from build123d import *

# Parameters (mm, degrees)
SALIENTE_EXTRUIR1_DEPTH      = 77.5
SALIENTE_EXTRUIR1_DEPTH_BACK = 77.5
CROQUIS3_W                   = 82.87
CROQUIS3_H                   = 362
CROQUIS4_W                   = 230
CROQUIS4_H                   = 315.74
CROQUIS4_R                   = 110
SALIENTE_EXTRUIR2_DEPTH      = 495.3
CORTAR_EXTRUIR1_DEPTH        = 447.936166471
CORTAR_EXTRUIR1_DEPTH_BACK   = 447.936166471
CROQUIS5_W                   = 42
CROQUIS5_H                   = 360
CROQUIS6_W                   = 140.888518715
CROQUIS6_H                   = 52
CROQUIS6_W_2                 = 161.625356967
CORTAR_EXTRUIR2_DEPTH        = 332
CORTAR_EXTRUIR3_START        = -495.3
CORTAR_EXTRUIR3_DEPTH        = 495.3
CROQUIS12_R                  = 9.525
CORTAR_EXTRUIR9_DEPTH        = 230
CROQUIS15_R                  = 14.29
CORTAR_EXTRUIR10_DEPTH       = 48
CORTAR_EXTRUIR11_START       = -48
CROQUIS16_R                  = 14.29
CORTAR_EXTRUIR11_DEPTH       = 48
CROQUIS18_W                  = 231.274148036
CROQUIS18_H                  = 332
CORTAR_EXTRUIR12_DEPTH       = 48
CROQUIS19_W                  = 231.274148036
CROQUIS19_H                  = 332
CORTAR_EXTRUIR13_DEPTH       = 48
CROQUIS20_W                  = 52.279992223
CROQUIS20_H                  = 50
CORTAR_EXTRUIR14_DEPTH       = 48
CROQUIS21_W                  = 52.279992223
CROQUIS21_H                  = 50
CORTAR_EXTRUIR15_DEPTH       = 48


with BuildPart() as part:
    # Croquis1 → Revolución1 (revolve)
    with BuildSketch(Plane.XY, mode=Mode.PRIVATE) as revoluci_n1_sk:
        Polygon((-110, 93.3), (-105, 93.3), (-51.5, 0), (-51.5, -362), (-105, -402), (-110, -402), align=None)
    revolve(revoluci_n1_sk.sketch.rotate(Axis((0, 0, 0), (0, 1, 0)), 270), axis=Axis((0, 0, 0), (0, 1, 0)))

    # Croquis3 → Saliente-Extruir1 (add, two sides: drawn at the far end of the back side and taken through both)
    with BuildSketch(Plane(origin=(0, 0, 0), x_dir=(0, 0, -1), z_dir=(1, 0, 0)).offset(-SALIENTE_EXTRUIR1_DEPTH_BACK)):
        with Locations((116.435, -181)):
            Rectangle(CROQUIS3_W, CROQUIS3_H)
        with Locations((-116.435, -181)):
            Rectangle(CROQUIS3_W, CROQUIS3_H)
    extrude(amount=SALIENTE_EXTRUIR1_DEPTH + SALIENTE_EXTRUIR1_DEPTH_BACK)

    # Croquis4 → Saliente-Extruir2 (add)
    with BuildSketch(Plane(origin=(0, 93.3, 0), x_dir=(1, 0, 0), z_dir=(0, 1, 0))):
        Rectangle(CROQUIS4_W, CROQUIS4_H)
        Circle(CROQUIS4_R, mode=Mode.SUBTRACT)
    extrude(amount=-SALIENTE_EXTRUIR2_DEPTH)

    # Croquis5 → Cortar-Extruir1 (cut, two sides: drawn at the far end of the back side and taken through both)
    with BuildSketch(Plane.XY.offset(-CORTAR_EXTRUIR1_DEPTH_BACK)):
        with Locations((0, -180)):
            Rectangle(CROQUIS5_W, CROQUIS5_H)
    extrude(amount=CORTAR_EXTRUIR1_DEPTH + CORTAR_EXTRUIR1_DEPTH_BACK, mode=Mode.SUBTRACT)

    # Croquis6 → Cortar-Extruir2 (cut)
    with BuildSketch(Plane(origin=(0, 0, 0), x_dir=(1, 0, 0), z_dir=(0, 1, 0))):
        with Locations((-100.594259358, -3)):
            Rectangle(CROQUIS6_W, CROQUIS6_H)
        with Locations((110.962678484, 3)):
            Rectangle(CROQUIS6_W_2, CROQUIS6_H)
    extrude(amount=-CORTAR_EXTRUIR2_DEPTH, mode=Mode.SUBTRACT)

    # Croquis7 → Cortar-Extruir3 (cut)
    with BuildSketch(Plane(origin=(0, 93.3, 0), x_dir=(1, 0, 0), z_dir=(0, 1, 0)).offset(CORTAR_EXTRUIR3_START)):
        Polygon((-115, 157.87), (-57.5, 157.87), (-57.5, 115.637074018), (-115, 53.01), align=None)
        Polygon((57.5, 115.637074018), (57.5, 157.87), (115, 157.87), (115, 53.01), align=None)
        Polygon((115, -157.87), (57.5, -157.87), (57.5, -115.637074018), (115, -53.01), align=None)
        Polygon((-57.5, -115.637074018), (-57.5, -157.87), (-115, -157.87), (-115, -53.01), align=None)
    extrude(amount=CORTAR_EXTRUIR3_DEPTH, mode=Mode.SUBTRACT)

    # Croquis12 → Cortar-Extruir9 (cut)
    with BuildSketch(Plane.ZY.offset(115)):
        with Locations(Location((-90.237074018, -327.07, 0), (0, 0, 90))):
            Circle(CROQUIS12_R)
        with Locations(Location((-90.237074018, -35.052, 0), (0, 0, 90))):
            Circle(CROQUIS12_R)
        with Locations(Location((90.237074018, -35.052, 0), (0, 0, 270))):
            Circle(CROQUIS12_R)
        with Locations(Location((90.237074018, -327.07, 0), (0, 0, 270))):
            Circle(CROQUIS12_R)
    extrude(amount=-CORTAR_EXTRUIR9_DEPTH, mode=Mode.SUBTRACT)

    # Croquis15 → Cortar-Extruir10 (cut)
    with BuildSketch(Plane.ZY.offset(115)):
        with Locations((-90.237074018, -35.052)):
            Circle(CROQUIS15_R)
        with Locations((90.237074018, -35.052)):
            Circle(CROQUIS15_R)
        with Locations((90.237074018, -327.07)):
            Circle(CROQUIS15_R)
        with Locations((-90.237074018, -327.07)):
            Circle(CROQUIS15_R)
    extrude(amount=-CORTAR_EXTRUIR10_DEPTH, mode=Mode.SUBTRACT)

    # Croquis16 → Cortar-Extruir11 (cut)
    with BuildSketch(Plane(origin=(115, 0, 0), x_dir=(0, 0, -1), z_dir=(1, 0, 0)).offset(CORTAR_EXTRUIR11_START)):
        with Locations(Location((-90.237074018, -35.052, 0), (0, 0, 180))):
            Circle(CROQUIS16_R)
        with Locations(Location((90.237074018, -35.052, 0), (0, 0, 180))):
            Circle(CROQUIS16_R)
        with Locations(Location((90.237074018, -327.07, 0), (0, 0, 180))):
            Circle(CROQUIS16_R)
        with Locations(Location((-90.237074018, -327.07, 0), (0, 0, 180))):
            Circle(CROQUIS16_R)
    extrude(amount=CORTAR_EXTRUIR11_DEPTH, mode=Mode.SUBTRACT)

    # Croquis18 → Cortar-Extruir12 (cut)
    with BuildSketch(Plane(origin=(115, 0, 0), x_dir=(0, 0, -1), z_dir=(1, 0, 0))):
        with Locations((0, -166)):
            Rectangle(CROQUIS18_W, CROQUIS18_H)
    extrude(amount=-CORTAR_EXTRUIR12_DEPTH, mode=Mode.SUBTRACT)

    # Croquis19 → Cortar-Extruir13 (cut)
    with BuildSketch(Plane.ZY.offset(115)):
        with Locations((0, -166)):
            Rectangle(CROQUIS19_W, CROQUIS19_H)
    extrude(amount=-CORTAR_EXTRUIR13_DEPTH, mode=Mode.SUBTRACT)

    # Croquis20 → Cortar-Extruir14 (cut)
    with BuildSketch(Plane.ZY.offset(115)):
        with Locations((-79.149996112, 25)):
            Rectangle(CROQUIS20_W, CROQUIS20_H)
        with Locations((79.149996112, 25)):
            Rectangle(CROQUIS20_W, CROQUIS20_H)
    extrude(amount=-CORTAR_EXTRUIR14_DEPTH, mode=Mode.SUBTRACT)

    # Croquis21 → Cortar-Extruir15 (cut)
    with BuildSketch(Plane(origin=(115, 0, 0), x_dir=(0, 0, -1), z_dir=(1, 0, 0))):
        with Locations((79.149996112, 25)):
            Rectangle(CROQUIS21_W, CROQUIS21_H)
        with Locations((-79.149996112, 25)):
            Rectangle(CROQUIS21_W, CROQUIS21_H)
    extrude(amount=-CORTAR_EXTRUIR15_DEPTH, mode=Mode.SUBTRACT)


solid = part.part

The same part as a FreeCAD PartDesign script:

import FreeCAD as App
import Part
import Sketcher


def add_polygon(sketch, points):
    """Adds a closed chain of lines whose ends are joined by coincident constraints."""
    first, n = sketch.GeometryCount, len(points)
    for a, b in zip(points, points[1:] + points[:1]):
        sketch.addGeometry(Part.LineSegment(App.Vector(*a, 0), App.Vector(*b, 0)), False)
    for i in range(n):
        sketch.addConstraint(Sketcher.Constraint("Coincident", first + i, 2, first + (i + 1) % n, 1))

doc = App.newDocument("Part")
body = doc.addObject("PartDesign::Body", "Body")

# Sketch on XY plane
sketch1 = body.newObject("Sketcher::SketchObject", "Sketch")
sketch1.AttachmentSupport = (doc.getObject("XY_Plane"), [""])
sketch1.MapMode = "FlatFace"
add_polygon(sketch1, [(-105, 93.3), (-110, 93.3), (-110, -402), (-105, -402), (-51.5, -362), (-51.5, 0)])  # lines 0-5
sketch1.addConstraint(Sketcher.Constraint("Horizontal", 0))
sketch1.addConstraint(Sketcher.Constraint("Vertical", 1))
sketch1.addConstraint(Sketcher.Constraint("Horizontal", 2))
sketch1.addConstraint(Sketcher.Constraint("Vertical", 4))
sketch1.addConstraint(Sketcher.Constraint("PointOnObject", 4, 2, -1))
sketch1.addConstraint(Sketcher.Constraint("Vertical", 2, 2, 5, 2))
sketch1.addConstraint(Sketcher.Constraint("DistanceX", 0, 2, 0, 1, 5.0))
sketch1.addConstraint(Sketcher.Constraint("DistanceY", 4, 1, 4, 2, 362.0))
sketch1.addConstraint(Sketcher.Constraint("DistanceY", 1, 2, 1, 1, 495.3))
sketch1.addConstraint(Sketcher.Constraint("DistanceX", 0, 2, -1, 1, 110.0))
sketch1.addConstraint(Sketcher.Constraint("DistanceY", 1, 2, -1, 1, 402.0))
sketch1.addConstraint(Sketcher.Constraint("DistanceX", 3, 2, -1, 1, 51.5))
revolution = body.newObject("PartDesign::Revolution", "Revolution")
revolution.Profile = sketch1
revolution.ReferenceAxis = (sketch1, ["V_Axis"])
revolution.Angle = 360

# Sketch on YZ plane
sketch2 = body.newObject("Sketcher::SketchObject", "Sketch001")
sketch2.AttachmentSupport = (doc.getObject("YZ_Plane"), [""])
sketch2.MapMode = "FlatFace"
add_polygon(sketch2, [(0, -75), (-362, -75), (-362, -157.87), (0, -157.87)])  # lines 0-3
add_polygon(sketch2, [(0, 157.87), (-362, 157.87), (-362, 75), (0, 75)])  # lines 4-7
sketch2.addConstraint(Sketcher.Constraint("Horizontal", 0))
sketch2.addConstraint(Sketcher.Constraint("Vertical", 1))
sketch2.addConstraint(Sketcher.Constraint("Horizontal", 2))
sketch2.addConstraint(Sketcher.Constraint("Vertical", 3))
sketch2.addConstraint(Sketcher.Constraint("Horizontal", 4))
sketch2.addConstraint(Sketcher.Constraint("Vertical", 5))
sketch2.addConstraint(Sketcher.Constraint("Horizontal", 6))
sketch2.addConstraint(Sketcher.Constraint("Vertical", 7))
sketch2.addConstraint(Sketcher.Constraint("Symmetric", 3, 2, 6, 2, -1, 1))
sketch2.addConstraint(Sketcher.Constraint("Symmetric", 1, 2, 4, 2, -1))
sketch2.addConstraint(Sketcher.Constraint("PointOnObject", 2, 2, -2))
sketch2.addConstraint(Sketcher.Constraint("DistanceX", 0, 2, 0, 1, 362.0))
sketch2.addConstraint(Sketcher.Constraint("DistanceY", 0, 2, -1, 1, 75.0))
sketch2.addConstraint(Sketcher.Constraint("DistanceY", 1, 2, 1, 1, 82.87))
pad1 = body.newObject("PartDesign::Pad", "Pad")
pad1.Profile = sketch2
pad1.Type = "TwoLengths"
pad1.Length = 77.5
pad1.Length2 = 77.5

# Sketch on XZ plane
sketch3 = body.newObject("Sketcher::SketchObject", "Sketch002")
sketch3.AttachmentSupport = (doc.getObject("XZ_Plane"), [""])
sketch3.MapMode = "FlatFace"
sketch3.AttachmentOffset = App.Placement(App.Vector(0, 0, -93.3), App.Rotation())
add_polygon(sketch3, [(-115, -157.87), (-115, 157.87), (115, 157.87), (115, -157.87)])  # lines 0-3
sketch3.addGeometry(Part.Circle(App.Vector(0, 0, 0), App.Vector(0, 0, 1), 110), False)  # 4
sketch3.addConstraint(Sketcher.Constraint("Vertical", 0))
sketch3.addConstraint(Sketcher.Constraint("Horizontal", 1))
sketch3.addConstraint(Sketcher.Constraint("Vertical", 2))
sketch3.addConstraint(Sketcher.Constraint("Horizontal", 3))
sketch3.addConstraint(Sketcher.Constraint("Coincident", 4, 3, -1, 1))
sketch3.addConstraint(Sketcher.Constraint("Symmetric", 0, 2, 2, 2, -1, 1))
sketch3.addConstraint(Sketcher.Constraint("Diameter", 4, 220.0))
sketch3.addConstraint(Sketcher.Constraint("DistanceX", 1, 1, 1, 2, 230.0))
sketch3.addConstraint(Sketcher.Constraint("DistanceY", 0, 1, 0, 2, 315.74))
pad2 = body.newObject("PartDesign::Pad", "Pad001")
pad2.Profile = sketch3
pad2.Length = 495.3

# Sketch on XY plane
sketch4 = body.newObject("Sketcher::SketchObject", "Sketch003")
sketch4.AttachmentSupport = (doc.getObject("XY_Plane"), [""])
sketch4.MapMode = "FlatFace"
add_polygon(sketch4, [(-21, 0), (-21, -360), (21, -360), (21, 0)])  # lines 0-3
sketch4.addConstraint(Sketcher.Constraint("Vertical", 0))
sketch4.addConstraint(Sketcher.Constraint("Horizontal", 1))
sketch4.addConstraint(Sketcher.Constraint("Vertical", 2))
sketch4.addConstraint(Sketcher.Constraint("Horizontal", 3))
sketch4.addConstraint(Sketcher.Constraint("Symmetric", 2, 2, 3, 2, -1, 1))
sketch4.addConstraint(Sketcher.Constraint("DistanceX", 1, 1, 1, 2, 42.0))
sketch4.addConstraint(Sketcher.Constraint("DistanceY", 0, 2, 0, 1, 360.0))
pocket1 = body.newObject("PartDesign::Pocket", "Pocket")
pocket1.Profile = sketch4
pocket1.Type = "ThroughAll"
pocket1.Midplane = True

# Sketch on XZ plane
sketch5 = body.newObject("Sketcher::SketchObject", "Sketch004")
sketch5.AttachmentSupport = (doc.getObject("XZ_Plane"), [""])
sketch5.MapMode = "FlatFace"
add_polygon(sketch5, [(-171.038519, -23), (-171.038519, 29), (-30.15, 29), (-30.15, -23)])  # lines 0-3
add_polygon(sketch5, [(30.15, -29), (30.15, 23), (191.775357, 23), (191.775357, -29)])  # lines 4-7
sketch5.addConstraint(Sketcher.Constraint("Vertical", 0))
sketch5.addConstraint(Sketcher.Constraint("Horizontal", 1))
sketch5.addConstraint(Sketcher.Constraint("Vertical", 2))
sketch5.addConstraint(Sketcher.Constraint("Horizontal", 3))
sketch5.addConstraint(Sketcher.Constraint("Vertical", 4))
sketch5.addConstraint(Sketcher.Constraint("Horizontal", 5))
sketch5.addConstraint(Sketcher.Constraint("Vertical", 6))
sketch5.addConstraint(Sketcher.Constraint("Horizontal", 7))
sketch5.addConstraint(Sketcher.Constraint("Symmetric", 2, 2, 4, 2, -1, 1))
sketch5.addConstraint(Sketcher.Constraint("Equal", 2, 4))
sketch5.addConstraint(Sketcher.Constraint("DistanceY", 0, 1, 0, 2, 52.0))
sketch5.addConstraint(Sketcher.Constraint("DistanceY", -1, 1, 0, 2, 29.0))
sketch5.addConstraint(Sketcher.Constraint("DistanceX", 1, 2, 4, 2, 60.3))
sketch5.addConstraint(Sketcher.Constraint("DistanceX", 1, 1, 1, 2, 140.888519))
sketch5.addConstraint(Sketcher.Constraint("DistanceX", 5, 1, 5, 2, 161.625357))
pocket2 = body.newObject("PartDesign::Pocket", "Pocket001")
pocket2.Profile = sketch5
pocket2.Length = 332
pocket2.Reversed = True

# Sketch on XZ plane
sketch6 = body.newObject("Sketcher::SketchObject", "Sketch005")
sketch6.AttachmentSupport = (doc.getObject("XZ_Plane"), [""])
sketch6.MapMode = "FlatFace"
sketch6.AttachmentOffset = App.Placement(App.Vector(0, 0, 402), App.Rotation())
add_polygon(sketch6, [(-57.5, -157.87), (-115, -157.87), (-115, -53.01), (-57.5, -115.637074)])  # lines 0-3
add_polygon(sketch6, [(57.5, -157.87), (57.5, -115.637074), (115, -53.01), (115, -157.87)])  # lines 4-7
add_polygon(sketch6, [(57.5, 157.87), (115, 157.87), (115, 53.01), (57.5, 115.637074)])  # lines 8-11
add_polygon(sketch6, [(-57.5, 157.87), (-57.5, 115.637074), (-115, 53.01), (-115, 157.87)])  # lines 12-15
sketch6.addConstraint(Sketcher.Constraint("Horizontal", 0))
sketch6.addConstraint(Sketcher.Constraint("Vertical", 1))
sketch6.addConstraint(Sketcher.Constraint("Vertical", 3))
sketch6.addConstraint(Sketcher.Constraint("Vertical", 4))
sketch6.addConstraint(Sketcher.Constraint("Vertical", 6))
sketch6.addConstraint(Sketcher.Constraint("Horizontal", 7))
sketch6.addConstraint(Sketcher.Constraint("Horizontal", 8))
sketch6.addConstraint(Sketcher.Constraint("Vertical", 9))
sketch6.addConstraint(Sketcher.Constraint("Vertical", 11))
sketch6.addConstraint(Sketcher.Constraint("Vertical", 12))
sketch6.addConstraint(Sketcher.Constraint("Vertical", 14))
sketch6.addConstraint(Sketcher.Constraint("Horizontal", 15))
sketch6.addConstraint(Sketcher.Constraint("Symmetric", 0, 2, 8, 2, -1, 1))
sketch6.addConstraint(Sketcher.Constraint("Symmetric", 2, 2, 10, 2, -1, 1))
sketch6.addConstraint(Sketcher.Constraint("Symmetric", 4, 2, 12, 2, -1, 1))
sketch6.addConstraint(Sketcher.Constraint("Symmetric", 5, 2, 13, 2, -1, 1))
sketch6.addConstraint(Sketcher.Constraint("Symmetric", 2, 2, 4, 2, -2))
sketch6.addConstraint(Sketcher.Constraint("Symmetric", 1, 2, 5, 2, -2))
sketch6.addConstraint(Sketcher.Constraint("Parallel", 2, 10))
sketch6.addConstraint(Sketcher.Constraint("Horizontal", 3, 2, 6, 2))
sketch6.addConstraint(Sketcher.Constraint("Horizontal", 11, 2, 14, 2))
sketch6.addConstraint(Sketcher.Constraint("DistanceX", 0, 2, 0, 1, 57.5))
sketch6.addConstraint(Sketcher.Constraint("DistanceX", 0, 2, -1, 1, 115.0))
sketch6.addConstraint(Sketcher.Constraint("DistanceY", 1, 1, 1, 2, 104.86))
sketch6.addConstraint(Sketcher.Constraint("Distance", 2, 85.02))
sketch6.addConstraint(Sketcher.Constraint("DistanceY", 0, 2, -1, 1, 157.87))
pocket3 = body.newObject("PartDesign::Pocket", "Pocket002")
pocket3.Profile = sketch6
pocket3.Length = 495.3

# Sketch on YZ plane
sketch7 = body.newObject("Sketcher::SketchObject", "Sketch006")
sketch7.AttachmentSupport = (doc.getObject("YZ_Plane"), [""])
sketch7.MapMode = "FlatFace"
sketch7.AttachmentOffset = App.Placement(App.Vector(0, 0, -115), App.Rotation())
sketch7.addGeometry(Part.Circle(App.Vector(-327.07, -90.237074, 0), App.Vector(0, 0, 1), 9.525), False)
sketch7.addGeometry(Part.Circle(App.Vector(-35.052, -90.237074, 0), App.Vector(0, 0, 1), 9.525), False)
sketch7.addGeometry(Part.Circle(App.Vector(-35.052, 90.237074, 0), App.Vector(0, 0, 1), 9.525), False)
sketch7.addGeometry(Part.Circle(App.Vector(-327.07, 90.237074, 0), App.Vector(0, 0, 1), 9.525), False)
sketch7.addConstraint(Sketcher.Constraint("Equal", 0, 1))
sketch7.addConstraint(Sketcher.Constraint("Equal", 1, 2))
sketch7.addConstraint(Sketcher.Constraint("Equal", 2, 3))
sketch7.addConstraint(Sketcher.Constraint("Symmetric", 1, 3, 2, 3, -1))
sketch7.addConstraint(Sketcher.Constraint("Symmetric", 0, 3, 3, 3, -1))
sketch7.addConstraint(Sketcher.Constraint("Horizontal", 0, 3, 1, 3))
sketch7.addConstraint(Sketcher.Constraint("Diameter", 0, 19.05))
sketch7.addConstraint(Sketcher.Constraint("DistanceX", 0, 3, -1, 1, 327.07))
sketch7.addConstraint(Sketcher.Constraint("DistanceX", 1, 3, -1, 1, 35.052))
sketch7.addConstraint(Sketcher.Constraint("DistanceY", 1, 3, 2, 3, 180.474148))
pocket4 = body.newObject("PartDesign::Pocket", "Pocket003")
pocket4.Profile = sketch7
pocket4.Length = 230
pocket4.Reversed = True

# Sketch on YZ plane
sketch8 = body.newObject("Sketcher::SketchObject", "Sketch007")
sketch8.AttachmentSupport = (doc.getObject("YZ_Plane"), [""])
sketch8.MapMode = "FlatFace"
sketch8.AttachmentOffset = App.Placement(App.Vector(0, 0, -115), App.Rotation())
sketch8.addGeometry(Part.Circle(App.Vector(-35.052, -90.237074, 0), App.Vector(0, 0, 1), 14.29), False)
sketch8.addGeometry(Part.Circle(App.Vector(-35.052, 90.237074, 0), App.Vector(0, 0, 1), 14.29), False)
sketch8.addGeometry(Part.Circle(App.Vector(-327.07, 90.237074, 0), App.Vector(0, 0, 1), 14.29), False)
sketch8.addGeometry(Part.Circle(App.Vector(-327.07, -90.237074, 0), App.Vector(0, 0, 1), 14.29), False)
sketch8.addConstraint(Sketcher.Constraint("Equal", 0, 1))
sketch8.addConstraint(Sketcher.Constraint("Equal", 1, 2))
sketch8.addConstraint(Sketcher.Constraint("Equal", 2, 3))
sketch8.addConstraint(Sketcher.Constraint("Symmetric", 0, 3, 1, 3, -1))
sketch8.addConstraint(Sketcher.Constraint("Symmetric", 2, 3, 3, 3, -1))
sketch8.addConstraint(Sketcher.Constraint("Horizontal", 1, 3, 2, 3))
sketch8.addConstraint(Sketcher.Constraint("Diameter", 0, 28.58))
sketch8.addConstraint(Sketcher.Constraint("DistanceX", 2, 3, -1, 1, 327.07))
sketch8.addConstraint(Sketcher.Constraint("DistanceX", 0, 3, -1, 1, 35.052))
sketch8.addConstraint(Sketcher.Constraint("DistanceY", 0, 3, 1, 3, 180.474148))
pocket5 = body.newObject("PartDesign::Pocket", "Pocket004")
pocket5.Profile = sketch8
pocket5.Length = 48
pocket5.Reversed = True

# Sketch on YZ plane
sketch9 = body.newObject("Sketcher::SketchObject", "Sketch008")
sketch9.AttachmentSupport = (doc.getObject("YZ_Plane"), [""])
sketch9.MapMode = "FlatFace"
sketch9.AttachmentOffset = App.Placement(App.Vector(0, 0, 67), App.Rotation())
sketch9.addGeometry(Part.Circle(App.Vector(-35.052, 90.237074, 0), App.Vector(0, 0, 1), 14.29), False)
sketch9.addGeometry(Part.Circle(App.Vector(-35.052, -90.237074, 0), App.Vector(0, 0, 1), 14.29), False)
sketch9.addGeometry(Part.Circle(App.Vector(-327.07, -90.237074, 0), App.Vector(0, 0, 1), 14.29), False)
sketch9.addGeometry(Part.Circle(App.Vector(-327.07, 90.237074, 0), App.Vector(0, 0, 1), 14.29), False)
sketch9.addConstraint(Sketcher.Constraint("Equal", 0, 1))
sketch9.addConstraint(Sketcher.Constraint("Equal", 1, 2))
sketch9.addConstraint(Sketcher.Constraint("Equal", 2, 3))
sketch9.addConstraint(Sketcher.Constraint("Symmetric", 0, 3, 1, 3, -1))
sketch9.addConstraint(Sketcher.Constraint("Symmetric", 2, 3, 3, 3, -1))
sketch9.addConstraint(Sketcher.Constraint("Horizontal", 1, 3, 2, 3))
sketch9.addConstraint(Sketcher.Constraint("Diameter", 0, 28.58))
sketch9.addConstraint(Sketcher.Constraint("DistanceX", 2, 3, -1, 1, 327.07))
sketch9.addConstraint(Sketcher.Constraint("DistanceX", 0, 3, -1, 1, 35.052))
sketch9.addConstraint(Sketcher.Constraint("DistanceY", 1, 3, 0, 3, 180.474148))
pocket6 = body.newObject("PartDesign::Pocket", "Pocket005")
pocket6.Profile = sketch9
pocket6.Length = 48
pocket6.Reversed = True

# Sketch on YZ plane
sketch10 = body.newObject("Sketcher::SketchObject", "Sketch009")
sketch10.AttachmentSupport = (doc.getObject("YZ_Plane"), [""])
sketch10.MapMode = "FlatFace"
sketch10.AttachmentOffset = App.Placement(App.Vector(0, 0, 115), App.Rotation())
add_polygon(sketch10, [(0, 115.637074), (-332, 115.637074), (-332, -115.637074), (0, -115.637074)])  # lines 0-3
sketch10.addConstraint(Sketcher.Constraint("Horizontal", 0))
sketch10.addConstraint(Sketcher.Constraint("Vertical", 1))
sketch10.addConstraint(Sketcher.Constraint("Horizontal", 2))
sketch10.addConstraint(Sketcher.Constraint("Vertical", 3))
sketch10.addConstraint(Sketcher.Constraint("Symmetric", 2, 2, 3, 2, -1, 1))
sketch10.addConstraint(Sketcher.Constraint("DistanceX", 0, 2, 0, 1, 332.0))
sketch10.addConstraint(Sketcher.Constraint("DistanceY", 1, 2, 1, 1, 231.274148))
pocket7 = body.newObject("PartDesign::Pocket", "Pocket006")
pocket7.Profile = sketch10
pocket7.Length = 48

# Sketch on YZ plane
sketch11 = body.newObject("Sketcher::SketchObject", "Sketch010")
sketch11.AttachmentSupport = (doc.getObject("YZ_Plane"), [""])
sketch11.MapMode = "FlatFace"
sketch11.AttachmentOffset = App.Placement(App.Vector(0, 0, -115), App.Rotation())
add_polygon(sketch11, [(0, -115.637074), (-332, -115.637074), (-332, 115.637074), (0, 115.637074)])  # lines 0-3
sketch11.addConstraint(Sketcher.Constraint("Horizontal", 0))
sketch11.addConstraint(Sketcher.Constraint("Vertical", 1))
sketch11.addConstraint(Sketcher.Constraint("Horizontal", 2))
sketch11.addConstraint(Sketcher.Constraint("Vertical", 3))
sketch11.addConstraint(Sketcher.Constraint("Symmetric", 2, 2, 3, 2, -1, 1))
sketch11.addConstraint(Sketcher.Constraint("DistanceX", 0, 2, 0, 1, 332.0))
sketch11.addConstraint(Sketcher.Constraint("DistanceY", 1, 1, 1, 2, 231.274148))
pocket8 = body.newObject("PartDesign::Pocket", "Pocket007")
pocket8.Profile = sketch11
pocket8.Length = 48
pocket8.Reversed = True

# Sketch on YZ plane
sketch12 = body.newObject("Sketcher::SketchObject", "Sketch011")
sketch12.AttachmentSupport = (doc.getObject("YZ_Plane"), [""])
sketch12.MapMode = "FlatFace"
sketch12.AttachmentOffset = App.Placement(App.Vector(0, 0, -115), App.Rotation())
add_polygon(sketch12, [(50, -105.289992), (0, -105.289992), (0, -53.01), (50, -53.01)])  # lines 0-3
add_polygon(sketch12, [(50, 53.01), (0, 53.01), (0, 105.289992), (50, 105.289992)])  # lines 4-7
sketch12.addConstraint(Sketcher.Constraint("Horizontal", 0))
sketch12.addConstraint(Sketcher.Constraint("Vertical", 1))
sketch12.addConstraint(Sketcher.Constraint("Horizontal", 2))
sketch12.addConstraint(Sketcher.Constraint("Vertical", 3))
sketch12.addConstraint(Sketcher.Constraint("Horizontal", 4))
sketch12.addConstraint(Sketcher.Constraint("Vertical", 5))
sketch12.addConstraint(Sketcher.Constraint("Horizontal", 6))
sketch12.addConstraint(Sketcher.Constraint("Vertical", 7))
sketch12.addConstraint(Sketcher.Constraint("Symmetric", 1, 2, 4, 2, -1, 1))
sketch12.addConstraint(Sketcher.Constraint("Symmetric", 0, 2, 5, 2, -1))
sketch12.addConstraint(Sketcher.Constraint("Vertical", 3, 2, 6, 2))
sketch12.addConstraint(Sketcher.Constraint("DistanceX", 0, 2, 0, 1, 50.0))
sketch12.addConstraint(Sketcher.Constraint("DistanceY", 1, 2, -1, 1, 53.01))
sketch12.addConstraint(Sketcher.Constraint("DistanceY", 1, 1, 1, 2, 52.279992))
pocket9 = body.newObject("PartDesign::Pocket", "Pocket008")
pocket9.Profile = sketch12
pocket9.Length = 48
pocket9.Reversed = True

# Sketch on YZ plane
sketch13 = body.newObject("Sketcher::SketchObject", "Sketch012")
sketch13.AttachmentSupport = (doc.getObject("YZ_Plane"), [""])
sketch13.MapMode = "FlatFace"
sketch13.AttachmentOffset = App.Placement(App.Vector(0, 0, 115), App.Rotation())
add_polygon(sketch13, [(50, -53.01), (0, -53.01), (0, -105.289992), (50, -105.289992)])  # lines 0-3
add_polygon(sketch13, [(50, 105.289992), (0, 105.289992), (0, 53.01), (50, 53.01)])  # lines 4-7
sketch13.addConstraint(Sketcher.Constraint("Horizontal", 0))
sketch13.addConstraint(Sketcher.Constraint("Vertical", 1))
sketch13.addConstraint(Sketcher.Constraint("Horizontal", 2))
sketch13.addConstraint(Sketcher.Constraint("Vertical", 3))
sketch13.addConstraint(Sketcher.Constraint("Horizontal", 4))
sketch13.addConstraint(Sketcher.Constraint("Vertical", 5))
sketch13.addConstraint(Sketcher.Constraint("Horizontal", 6))
sketch13.addConstraint(Sketcher.Constraint("Vertical", 7))
sketch13.addConstraint(Sketcher.Constraint("Symmetric", 1, 2, 4, 2, -1, 1))
sketch13.addConstraint(Sketcher.Constraint("Symmetric", 0, 2, 5, 2, -1))
sketch13.addConstraint(Sketcher.Constraint("Vertical", 3, 2, 6, 2))
sketch13.addConstraint(Sketcher.Constraint("DistanceX", 0, 2, 0, 1, 50.0))
sketch13.addConstraint(Sketcher.Constraint("DistanceY", 0, 2, -1, 1, 53.01))
sketch13.addConstraint(Sketcher.Constraint("DistanceY", 1, 2, 1, 1, 52.279992))
pocket10 = body.newObject("PartDesign::Pocket", "Pocket009")
pocket10.Profile = sketch13
pocket10.Length = 48

doc.recompute()
